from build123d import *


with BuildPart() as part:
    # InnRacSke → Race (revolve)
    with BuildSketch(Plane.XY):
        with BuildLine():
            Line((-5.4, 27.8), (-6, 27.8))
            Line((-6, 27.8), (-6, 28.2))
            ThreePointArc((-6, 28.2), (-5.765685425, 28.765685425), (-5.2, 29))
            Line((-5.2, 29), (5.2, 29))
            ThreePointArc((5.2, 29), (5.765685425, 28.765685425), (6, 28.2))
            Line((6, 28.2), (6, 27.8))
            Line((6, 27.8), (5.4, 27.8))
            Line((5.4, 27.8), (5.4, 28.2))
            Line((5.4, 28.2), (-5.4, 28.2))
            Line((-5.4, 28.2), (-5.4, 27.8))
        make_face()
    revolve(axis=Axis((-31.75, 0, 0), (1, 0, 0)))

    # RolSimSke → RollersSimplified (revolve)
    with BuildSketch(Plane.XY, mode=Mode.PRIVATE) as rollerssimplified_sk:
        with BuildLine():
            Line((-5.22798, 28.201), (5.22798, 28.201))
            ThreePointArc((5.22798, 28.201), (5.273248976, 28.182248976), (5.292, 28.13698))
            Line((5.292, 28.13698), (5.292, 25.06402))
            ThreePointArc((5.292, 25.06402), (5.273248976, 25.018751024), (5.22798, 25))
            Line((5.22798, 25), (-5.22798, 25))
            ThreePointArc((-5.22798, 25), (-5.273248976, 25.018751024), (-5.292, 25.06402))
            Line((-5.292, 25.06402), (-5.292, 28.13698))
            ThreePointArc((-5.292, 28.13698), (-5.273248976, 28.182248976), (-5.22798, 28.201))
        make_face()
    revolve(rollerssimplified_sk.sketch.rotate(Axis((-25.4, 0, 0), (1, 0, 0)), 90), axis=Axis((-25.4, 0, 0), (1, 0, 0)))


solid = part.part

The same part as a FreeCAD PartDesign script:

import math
import FreeCAD as App
import Part
import Sketcher

doc = App.newDocument("Part")
body = doc.addObject("PartDesign::Body", "Body")

# Sketch on XY plane
sketch1 = body.newObject("Sketcher::SketchObject", "Sketch")
sketch1.AttachmentSupport = (doc.getObject("XY_Plane"), [""])
sketch1.MapMode = "FlatFace"
sketch1.addGeometry([
    Part.LineSegment(App.Vector(-6, 27.8, 0), App.Vector(-5.4, 27.8, 0)),  # 0
    Part.LineSegment(App.Vector(-5.4, 27.8, 0), App.Vector(-5.4, 28.2, 0)),  # 1
    Part.LineSegment(App.Vector(-5.4, 28.2, 0), App.Vector(5.4, 28.2, 0)),  # 2
    Part.LineSegment(App.Vector(5.4, 28.2, 0), App.Vector(5.4, 27.8, 0)),  # 3
    Part.LineSegment(App.Vector(5.4, 27.8, 0), App.Vector(6, 27.8, 0)),  # 4
    Part.LineSegment(App.Vector(6, 27.8, 0), App.Vector(6, 28.2, 0)),  # 5
    Part.ArcOfCircle(Part.Circle(App.Vector(5.2, 28.2, 0), App.Vector(0, 0, 1), 0.8), math.radians(0), math.radians(90)),  # 6
    Part.LineSegment(App.Vector(5.2, 29, 0), App.Vector(-5.2, 29, 0)),  # 7
    Part.ArcOfCircle(Part.Circle(App.Vector(-5.2, 28.2, 0), App.Vector(0, 0, 1), 0.8), math.radians(90), math.radians(180)),  # 8
    Part.LineSegment(App.Vector(-6, 28.2, 0), App.Vector(-6, 27.8, 0)),  # 9
], False)
sketch1.addConstraint([
    Sketcher.Constraint("Coincident", 0, 2, 1, 1),
    Sketcher.Constraint("Coincident", 1, 2, 2, 1),
    Sketcher.Constraint("Coincident", 2, 2, 3, 1),
    Sketcher.Constraint("Coincident", 3, 2, 4, 1),
    Sketcher.Constraint("Coincident", 4, 2, 5, 1),
    Sketcher.Constraint("Tangent", 5, 2, 6, 1),
    Sketcher.Constraint("Tangent", 6, 2, 7, 1),
    Sketcher.Constraint("Tangent", 7, 2, 8, 1),
    Sketcher.Constraint("Tangent", 8, 2, 9, 1),
    Sketcher.Constraint("Coincident", 9, 2, 0, 1),
    Sketcher.Constraint("Horizontal", 0),
    Sketcher.Constraint("Vertical", 1),
    Sketcher.Constraint("Horizontal", 2),
    Sketcher.Constraint("Vertical", 3),
    Sketcher.Constraint("Horizontal", 4),
    Sketcher.Constraint("Vertical", 5),
    Sketcher.Constraint("Horizontal", 7),
    Sketcher.Constraint("Vertical", 9),
    Sketcher.Constraint("Equal", 6, 8),
    Sketcher.Constraint("Symmetric", 0, 2, 3, 2, -2),
    Sketcher.Constraint("Horizontal", 8, 3, 1, 2),
    Sketcher.Constraint("Equal", 0, 4),
    Sketcher.Constraint("Radius", 6, 0.8),
    Sketcher.Constraint("DistanceX", 0, 1, 0, 2, 0.6),
    Sketcher.Constraint("DistanceX", 2, 1, 2, 2, 10.8),
    Sketcher.Constraint("DistanceY", 1, 1, 1, 2, 0.4),
    Sketcher.Constraint("DistanceY", -1, 1, 6, 2, 29.0),
])
revolution = body.newObject("PartDesign::Revolution", "Revolution")
revolution.Profile = sketch1
revolution.ReferenceAxis = (sketch1, ["H_Axis"])
revolution.Angle = 360

# Sketch on XY plane
sketch2 = body.newObject("Sketcher::SketchObject", "Sketch001")
sketch2.AttachmentSupport = (doc.getObject("XY_Plane"), [""])
sketch2.MapMode = "FlatFace"
sketch2.addGeometry([
    Part.LineSegment(App.Vector(5.23, 28.2, 0), App.Vector(-5.23, 28.2, 0)),  # 0
    Part.ArcOfCircle(Part.Circle(App.Vector(-5.23, 28.14, 0), App.Vector(0, 0, 1), 0.06), math.radians(90), math.radians(180)),  # 1
    Part.LineSegment(App.Vector(-5.29, 28.14, 0), App.Vector(-5.29, 25.06, 0)),  # 2
    Part.ArcOfCircle(Part.Circle(App.Vector(-5.23, 25.06, 0), App.Vector(0, 0, 1), 0.06), math.radians(180), math.radians(270)),  # 3
    Part.LineSegment(App.Vector(-5.23, 25, 0), App.Vector(5.23, 25, 0)),  # 4
    Part.ArcOfCircle(Part.Circle(App.Vector(5.23, 25.06, 0), App.Vector(0, 0, 1), 0.06), math.radians(-90), math.radians(0)),  # 5
    Part.LineSegment(App.Vector(5.29, 25.06, 0), App.Vector(5.29, 28.14, 0)),  # 6
    Part.ArcOfCircle(Part.Circle(App.Vector(5.23, 28.14, 0), App.Vector(0, 0, 1), 0.06), math.radians(0), math.radians(90)),  # 7
], False)
sketch2.addConstraint([
    Sketcher.Constraint("Tangent", 0, 2, 1, 1),
    Sketcher.Constraint("Tangent", 1, 2, 2, 1),
    Sketcher.Constraint("Tangent", 2, 2, 3, 1),
    Sketcher.Constraint("Tangent", 3, 2, 4, 1),
    Sketcher.Constraint("Tangent", 4, 2, 5, 1),
    Sketcher.Constraint("Tangent", 5, 2, 6, 1),
    Sketcher.Constraint("Tangent", 6, 2, 7, 1),
    Sketcher.Constraint("Tangent", 7, 2, 0, 1),
    Sketcher.Constraint("Horizontal", 0),
    Sketcher.Constraint("Vertical", 2),
    Sketcher.Constraint("Horizontal", 4),
    Sketcher.Constraint("Vertical", 6),
    Sketcher.Constraint("Equal", 1, 3),
    Sketcher.Constraint("Equal", 3, 5),
    Sketcher.Constraint("Equal", 5, 7),
    Sketcher.Constraint("DistanceY", -1, 1, 3, 2, 25.0),
    Sketcher.Constraint("Radius", 1, 0.06402),
    Sketcher.Constraint("DistanceY", -1, 1, 0, 2, 28.201),
    Sketcher.Constraint("DistanceX", 1, 2, -1, 1, 5.292),
    Sketcher.Constraint("DistanceX", -1, 1, 5, 2, 5.292),
])
revolution2 = body.newObject("PartDesign::Revolution", "Revolution001")
revolution2.Profile = sketch2
revolution2.ReferenceAxis = (sketch2, ["H_Axis"])
revolution2.Angle = 360

doc.recompute()
